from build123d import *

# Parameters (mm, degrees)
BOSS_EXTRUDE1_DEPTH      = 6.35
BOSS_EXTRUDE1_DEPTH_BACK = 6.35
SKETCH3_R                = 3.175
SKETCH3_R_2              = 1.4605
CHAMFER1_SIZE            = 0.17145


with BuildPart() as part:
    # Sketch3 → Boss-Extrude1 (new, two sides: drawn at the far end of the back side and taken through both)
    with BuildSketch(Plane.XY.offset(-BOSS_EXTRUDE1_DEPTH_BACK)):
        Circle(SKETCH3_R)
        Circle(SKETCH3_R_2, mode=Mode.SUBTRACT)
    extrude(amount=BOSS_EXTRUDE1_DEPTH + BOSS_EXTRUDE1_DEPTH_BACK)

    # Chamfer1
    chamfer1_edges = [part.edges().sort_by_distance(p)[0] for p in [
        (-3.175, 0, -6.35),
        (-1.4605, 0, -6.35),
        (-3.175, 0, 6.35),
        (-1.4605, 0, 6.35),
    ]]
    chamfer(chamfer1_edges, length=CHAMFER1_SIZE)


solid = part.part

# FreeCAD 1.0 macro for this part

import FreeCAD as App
import Part
import Sketcher
Q = App.Units.Quantity


def edges_at(feature, points):
    """Names of the edges that pass closest to the given points."""
    edges = feature.Shape.Edges
    near = lambda p: min(range(len(edges)), key=lambda i: edges[i].distToShape(Part.Vertex(*p))[0])
    return sorted({f"Edge{near(p) + 1}" for p in points})

doc = App.newDocument("Part")
body = doc.addObject("PartDesign::Body", "Body")

# Sketch on XY plane
sketch1 = body.newObject("Sketcher::SketchObject", "Sketch")
sketch1.AttachmentSupport = (doc.getObject("XY_Plane"), [""])
sketch1.MapMode = "FlatFace"
sketch1.addGeometry(Part.Circle(App.Vector(0, 0, 0), App.Vector(0, 0, 1), 3.2), False)
sketch1.addGeometry(Part.Circle(App.Vector(0, 0, 0), App.Vector(0, 0, 1), 1.5), False)
sketch1.addConstraint(Sketcher.Constraint("Coincident", 0, 3, -1, 1))
sketch1.addConstraint(Sketcher.Constraint("Coincident", 1, 3, -1, 1))
sketch1.addConstraint(Sketcher.Constraint("Diameter", 0, Q("0.25 in")))
sketch1.addConstraint(Sketcher.Constraint("Diameter", 1, Q("0.115 in")))
pad1 = body.newObject("PartDesign::Pad", "Pad")
pad1.Profile = sketch1
pad1.Type = "TwoLengths"
pad1.Length = Q("0.25 in")
pad1.Length2 = Q("0.25 in")
doc.recompute()

chamfer = body.newObject("PartDesign::Chamfer", "Chamfer")
chamfer.Base = (pad1, edges_at(pad1, [
    (-3.175, 0, -6.35),
    (-1.46, 0, -6.35),
    (-3.175, 0, 6.35),
    (-1.46, 0, 6.35),
]))
chamfer.Size = 0.17145

doc.recompute()
